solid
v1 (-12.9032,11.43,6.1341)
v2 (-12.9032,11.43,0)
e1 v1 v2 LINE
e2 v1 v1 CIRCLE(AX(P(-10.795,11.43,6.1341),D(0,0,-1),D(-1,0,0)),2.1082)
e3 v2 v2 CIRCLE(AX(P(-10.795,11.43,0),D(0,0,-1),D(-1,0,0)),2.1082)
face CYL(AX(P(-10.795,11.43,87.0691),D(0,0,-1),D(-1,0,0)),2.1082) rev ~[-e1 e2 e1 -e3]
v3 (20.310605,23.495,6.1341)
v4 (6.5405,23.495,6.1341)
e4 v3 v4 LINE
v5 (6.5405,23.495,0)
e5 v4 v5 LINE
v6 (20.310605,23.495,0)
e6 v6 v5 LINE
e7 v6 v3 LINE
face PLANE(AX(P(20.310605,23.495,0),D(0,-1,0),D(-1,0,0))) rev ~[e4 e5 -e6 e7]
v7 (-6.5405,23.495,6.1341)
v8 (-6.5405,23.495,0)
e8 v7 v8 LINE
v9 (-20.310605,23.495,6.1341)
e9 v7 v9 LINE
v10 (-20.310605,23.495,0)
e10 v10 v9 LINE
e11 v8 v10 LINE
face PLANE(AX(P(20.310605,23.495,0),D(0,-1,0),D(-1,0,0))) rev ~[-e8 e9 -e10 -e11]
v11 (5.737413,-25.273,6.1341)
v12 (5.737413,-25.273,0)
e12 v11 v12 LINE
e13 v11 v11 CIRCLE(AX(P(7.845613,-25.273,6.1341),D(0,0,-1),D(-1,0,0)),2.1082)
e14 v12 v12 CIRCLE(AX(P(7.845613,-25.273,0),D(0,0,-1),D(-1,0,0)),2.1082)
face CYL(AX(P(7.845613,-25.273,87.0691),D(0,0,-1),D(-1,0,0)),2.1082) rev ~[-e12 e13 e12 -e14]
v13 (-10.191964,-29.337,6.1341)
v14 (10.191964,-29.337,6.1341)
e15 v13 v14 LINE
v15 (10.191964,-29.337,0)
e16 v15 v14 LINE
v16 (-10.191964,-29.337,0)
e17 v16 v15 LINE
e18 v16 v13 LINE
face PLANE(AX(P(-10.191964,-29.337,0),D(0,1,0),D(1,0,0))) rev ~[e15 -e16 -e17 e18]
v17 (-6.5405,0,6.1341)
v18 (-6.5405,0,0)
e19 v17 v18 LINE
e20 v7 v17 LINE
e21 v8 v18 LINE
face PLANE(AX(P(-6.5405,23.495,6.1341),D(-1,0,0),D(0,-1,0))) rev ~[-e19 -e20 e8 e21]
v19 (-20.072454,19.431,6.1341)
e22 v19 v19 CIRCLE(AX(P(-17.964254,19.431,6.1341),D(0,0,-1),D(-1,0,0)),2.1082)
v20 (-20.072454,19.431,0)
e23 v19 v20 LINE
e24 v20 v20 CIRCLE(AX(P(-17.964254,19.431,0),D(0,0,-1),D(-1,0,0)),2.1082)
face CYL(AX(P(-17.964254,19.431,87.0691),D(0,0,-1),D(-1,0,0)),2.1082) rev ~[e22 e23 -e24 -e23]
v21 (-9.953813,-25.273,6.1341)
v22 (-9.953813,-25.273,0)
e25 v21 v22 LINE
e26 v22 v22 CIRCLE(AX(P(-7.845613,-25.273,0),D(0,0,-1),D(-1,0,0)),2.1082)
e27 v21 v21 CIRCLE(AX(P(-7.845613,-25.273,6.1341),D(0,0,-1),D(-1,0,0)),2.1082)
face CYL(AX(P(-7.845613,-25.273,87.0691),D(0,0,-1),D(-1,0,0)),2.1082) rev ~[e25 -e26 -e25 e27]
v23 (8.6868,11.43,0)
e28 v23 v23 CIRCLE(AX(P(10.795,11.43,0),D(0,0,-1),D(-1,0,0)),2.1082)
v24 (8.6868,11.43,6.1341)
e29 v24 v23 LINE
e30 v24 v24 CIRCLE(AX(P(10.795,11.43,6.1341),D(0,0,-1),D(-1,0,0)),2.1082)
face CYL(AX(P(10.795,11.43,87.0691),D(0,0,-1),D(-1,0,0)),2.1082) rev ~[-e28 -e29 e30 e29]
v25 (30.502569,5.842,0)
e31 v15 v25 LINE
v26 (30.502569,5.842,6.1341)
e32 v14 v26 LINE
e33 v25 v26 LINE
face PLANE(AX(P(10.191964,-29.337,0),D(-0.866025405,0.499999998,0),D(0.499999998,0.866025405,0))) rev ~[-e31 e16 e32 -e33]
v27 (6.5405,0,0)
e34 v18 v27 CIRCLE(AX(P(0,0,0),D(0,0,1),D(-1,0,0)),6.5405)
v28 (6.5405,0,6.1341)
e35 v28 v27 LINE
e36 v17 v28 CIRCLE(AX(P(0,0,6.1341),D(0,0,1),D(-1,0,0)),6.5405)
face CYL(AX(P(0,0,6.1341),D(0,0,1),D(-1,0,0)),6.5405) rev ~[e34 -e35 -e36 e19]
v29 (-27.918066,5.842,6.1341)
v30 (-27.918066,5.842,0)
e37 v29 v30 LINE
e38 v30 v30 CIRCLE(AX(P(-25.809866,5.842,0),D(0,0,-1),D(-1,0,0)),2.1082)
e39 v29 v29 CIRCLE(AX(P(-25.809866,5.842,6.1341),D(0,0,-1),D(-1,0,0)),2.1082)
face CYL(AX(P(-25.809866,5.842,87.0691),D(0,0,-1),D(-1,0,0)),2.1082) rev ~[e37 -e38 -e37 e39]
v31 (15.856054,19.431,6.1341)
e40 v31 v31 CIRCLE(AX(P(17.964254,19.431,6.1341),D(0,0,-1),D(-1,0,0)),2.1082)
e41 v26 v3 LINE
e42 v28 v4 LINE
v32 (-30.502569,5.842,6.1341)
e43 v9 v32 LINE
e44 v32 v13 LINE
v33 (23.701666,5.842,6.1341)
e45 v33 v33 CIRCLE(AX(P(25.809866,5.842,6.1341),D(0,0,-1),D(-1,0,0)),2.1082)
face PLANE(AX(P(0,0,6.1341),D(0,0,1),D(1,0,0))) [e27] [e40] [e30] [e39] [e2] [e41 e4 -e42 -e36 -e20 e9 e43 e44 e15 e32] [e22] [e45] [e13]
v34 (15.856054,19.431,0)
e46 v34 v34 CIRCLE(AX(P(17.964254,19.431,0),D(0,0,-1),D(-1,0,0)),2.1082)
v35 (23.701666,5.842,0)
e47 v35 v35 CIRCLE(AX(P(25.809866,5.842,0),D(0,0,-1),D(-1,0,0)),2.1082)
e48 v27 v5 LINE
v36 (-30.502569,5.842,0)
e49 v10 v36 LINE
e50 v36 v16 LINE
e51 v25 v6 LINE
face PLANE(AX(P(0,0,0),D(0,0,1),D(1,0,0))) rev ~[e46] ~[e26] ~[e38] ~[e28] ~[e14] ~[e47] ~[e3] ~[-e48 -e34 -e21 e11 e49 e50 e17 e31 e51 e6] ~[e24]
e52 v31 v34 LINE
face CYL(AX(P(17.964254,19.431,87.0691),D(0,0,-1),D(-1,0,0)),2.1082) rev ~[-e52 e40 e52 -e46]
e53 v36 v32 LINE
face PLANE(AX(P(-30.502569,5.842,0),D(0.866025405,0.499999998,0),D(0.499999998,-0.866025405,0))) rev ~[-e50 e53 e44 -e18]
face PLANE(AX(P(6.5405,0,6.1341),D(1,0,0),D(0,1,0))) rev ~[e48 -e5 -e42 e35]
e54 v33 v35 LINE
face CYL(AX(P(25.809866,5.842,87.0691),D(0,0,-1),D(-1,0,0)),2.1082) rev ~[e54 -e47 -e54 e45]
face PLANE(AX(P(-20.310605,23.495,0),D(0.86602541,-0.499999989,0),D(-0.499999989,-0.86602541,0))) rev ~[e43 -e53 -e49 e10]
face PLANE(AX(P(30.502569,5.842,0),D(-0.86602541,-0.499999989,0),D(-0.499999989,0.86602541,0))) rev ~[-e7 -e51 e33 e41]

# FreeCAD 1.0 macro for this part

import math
import FreeCAD as App
import Part
import Sketcher
Q = App.Units.Quantity


def add_polygon(sketch, points):
    """Adds a closed chain of lines whose ends are joined by coincident constraints."""
    first, n = sketch.GeometryCount, len(points)
    for a, b in zip(points, points[1:] + points[:1]):
        sketch.addGeometry(Part.LineSegment(App.Vector(*a, 0), App.Vector(*b, 0)), False)
    for i in range(n):
        sketch.addConstraint(Sketcher.Constraint("Coincident", first + i, 2, first + (i + 1) % n, 1))

doc = App.newDocument("Part")
body = doc.addObject("PartDesign::Body", "Body")

sketch1 = body.newObject("Sketcher::SketchObject", "Sketch")
sketch1.AttachmentSupport = (doc.getObject("XY_Plane"), [""])
sketch1.MapMode = "FlatFace"
add_polygon(sketch1, [(-31, 6), (-10, -29), (10, -29), (31, 6), (20, 23), (-20, 23)])
sketch1.addConstraint([
    Sketcher.Constraint("Horizontal", 1),
    Sketcher.Constraint("Horizontal", 4),
    Sketcher.Constraint("Symmetric", 2, 2, 5, 2, -2),
    Sketcher.Constraint("Parallel", 0, 3),
    Sketcher.Constraint("Parallel", 2, 5),
    Sketcher.Constraint("Equal", 0, 2),
    Sketcher.Constraint("Angle", 0, Q("-60 deg")),
    Sketcher.Constraint("DistanceY", -1, 1, 2, 2, Q("0.23 in")),
    Sketcher.Constraint("DistanceY", 1, 2, 3, 2, Q("2.08 in")),
    Sketcher.Constraint("DistanceY", 0, 2, -1, 1, Q("1.155 in")),
    Sketcher.Constraint("DistanceX", 1, 1, 1, 2, Q("20.383928 mm")),
])
pad1 = body.newObject("PartDesign::Pad", "Pad")
pad1.Profile = sketch1
pad1.Length = Q("0.2415 in")

sketch2 = body.newObject("Sketcher::SketchObject", "Sketch001")
sketch2.AttachmentSupport = (doc.getObject("XY_Plane"), [""])
sketch2.MapMode = "FlatFace"
sketch2.AttachmentOffset = App.Placement(App.Vector(0, 0, 0.2415 * 25.4), App.Rotation())
sketch2.addGeometry([
    Part.Circle(App.Vector(-18, 19.4, 0), App.Vector(0, 0, 1), 2.1),
    Part.Circle(App.Vector(-25.8, 5.8, 0), App.Vector(0, 0, 1), 2.1),
    Part.Circle(App.Vector(-7.8, -25.3, 0), App.Vector(0, 0, 1), 2.1),
    Part.Circle(App.Vector(7.8, -25.3, 0), App.Vector(0, 0, 1), 2.1),
    Part.Circle(App.Vector(25.8, 5.8, 0), App.Vector(0, 0, 1), 2.1),
    Part.Circle(App.Vector(18, 19.4, 0), App.Vector(0, 0, 1), 2.1),
], False)
sketch2.addConstraint([
    Sketcher.Constraint("Equal", 0, 1),
    Sketcher.Constraint("Equal", 1, 2),
    Sketcher.Constraint("Equal", 2, 3),
    Sketcher.Constraint("Equal", 3, 4),
    Sketcher.Constraint("Equal", 4, 5),
    Sketcher.Constraint("Symmetric", 2, 3, 3, 3, -2),
    Sketcher.Constraint("Symmetric", 1, 3, 4, 3, -2),
    Sketcher.Constraint("Symmetric", 0, 3, 5, 3, -2),
    Sketcher.Constraint("Diameter", 0, Q("0.166 in")),
    Sketcher.Constraint("DistanceY", -1, 1, 1, 3, Q("0.23 in")),
    Sketcher.Constraint("DistanceY", 2, 3, 0, 3, Q("1.76 in")),
    Sketcher.Constraint("DistanceY", -1, 1, 0, 3, Q("0.765 in")),
    Sketcher.Constraint("DistanceX", 1, 3, 0, 3, Q("7.845612 mm")),
    Sketcher.Constraint("DistanceX", 0, 3, 2, 3, Q("10.118641 mm")),
    Sketcher.Constraint("DistanceX", 1, 3, 3, 3, Q("33.655479 mm")),
])
doc.recompute()
hole = body.newObject("PartDesign::Hole", "Hole")
hole.Profile = sketch2
hole.ThreadType = "None"
hole.Diameter = Q("0.166 in")
hole.DepthType = "ThroughAll"

sketch3 = body.newObject("Sketcher::SketchObject", "Sketch002")
sketch3.AttachmentSupport = (doc.getObject("XY_Plane"), [""])
sketch3.MapMode = "FlatFace"
sketch3.AttachmentOffset = App.Placement(App.Vector(0, 0, 0.2415 * 25.4), App.Rotation())
sketch3.addGeometry([
    Part.LineSegment(App.Vector(-7, 23, 0), App.Vector(-7, 0, 0)),
    Part.ArcOfCircle(Part.Circle(App.Vector(0, 0, 0), App.Vector(0, 0, 1), 7), math.radians(180), math.radians(360)),
    Part.LineSegment(App.Vector(7, 0, 0), App.Vector(7, 23, 0)),
    Part.LineSegment(App.Vector(7, 23, 0), App.Vector(-7, 23, 0)),
], False)
sketch3.addConstraint([
    Sketcher.Constraint("Tangent", 0, 2, 1, 1),
    Sketcher.Constraint("Tangent", 1, 2, 2, 1),
    Sketcher.Constraint("Coincident", 2, 2, 3, 1),
    Sketcher.Constraint("Coincident", 3, 2, 0, 1),
    Sketcher.Constraint("Vertical", 0),
    Sketcher.Constraint("Vertical", 2),
    Sketcher.Constraint("Horizontal", 3),
    Sketcher.Constraint("Coincident", 1, 3, -1, 1),
    Sketcher.Constraint("Radius", 1, Q("0.2575 in")),
    Sketcher.Constraint("DistanceY", 0, 2, 0, 1, Q("0.925 in")),
])
pocket1 = body.newObject("PartDesign::Pocket", "Pocket")
pocket1.Profile = sketch3
pocket1.Type = "ThroughAll"

sketch4 = body.newObject("Sketcher::SketchObject", "Sketch003")
sketch4.AttachmentSupport = (doc.getObject("XY_Plane"), [""])
sketch4.MapMode = "FlatFace"
sketch4.AttachmentOffset = App.Placement(App.Vector(0, 0, 0.2415 * 25.4), App.Rotation())
sketch4.addGeometry([
    Part.Circle(App.Vector(-10.8, 11.4, 0), App.Vector(0, 0, 1), 2.1),
    Part.Circle(App.Vector(10.8, 11.4, 0), App.Vector(0, 0, 1), 2.1),
], False)
sketch4.addConstraint([
    Sketcher.Constraint("Equal", 0, 1),
    Sketcher.Constraint("Symmetric", 0, 3, 1, 3, -2),
    Sketcher.Constraint("Diameter", 0, Q("0.166 in")),
    Sketcher.Constraint("DistanceY", -1, 1, 0, 3, Q("0.45 in")),
    Sketcher.Constraint("DistanceX", 0, 3, 1, 3, Q("0.85 in")),
])
doc.recompute()
hole2 = body.newObject("PartDesign::Hole", "Hole001")
hole2.Profile = sketch4
hole2.ThreadType = "None"
hole2.Diameter = Q("0.166 in")
hole2.DepthType = "ThroughAll"

doc.recompute()
